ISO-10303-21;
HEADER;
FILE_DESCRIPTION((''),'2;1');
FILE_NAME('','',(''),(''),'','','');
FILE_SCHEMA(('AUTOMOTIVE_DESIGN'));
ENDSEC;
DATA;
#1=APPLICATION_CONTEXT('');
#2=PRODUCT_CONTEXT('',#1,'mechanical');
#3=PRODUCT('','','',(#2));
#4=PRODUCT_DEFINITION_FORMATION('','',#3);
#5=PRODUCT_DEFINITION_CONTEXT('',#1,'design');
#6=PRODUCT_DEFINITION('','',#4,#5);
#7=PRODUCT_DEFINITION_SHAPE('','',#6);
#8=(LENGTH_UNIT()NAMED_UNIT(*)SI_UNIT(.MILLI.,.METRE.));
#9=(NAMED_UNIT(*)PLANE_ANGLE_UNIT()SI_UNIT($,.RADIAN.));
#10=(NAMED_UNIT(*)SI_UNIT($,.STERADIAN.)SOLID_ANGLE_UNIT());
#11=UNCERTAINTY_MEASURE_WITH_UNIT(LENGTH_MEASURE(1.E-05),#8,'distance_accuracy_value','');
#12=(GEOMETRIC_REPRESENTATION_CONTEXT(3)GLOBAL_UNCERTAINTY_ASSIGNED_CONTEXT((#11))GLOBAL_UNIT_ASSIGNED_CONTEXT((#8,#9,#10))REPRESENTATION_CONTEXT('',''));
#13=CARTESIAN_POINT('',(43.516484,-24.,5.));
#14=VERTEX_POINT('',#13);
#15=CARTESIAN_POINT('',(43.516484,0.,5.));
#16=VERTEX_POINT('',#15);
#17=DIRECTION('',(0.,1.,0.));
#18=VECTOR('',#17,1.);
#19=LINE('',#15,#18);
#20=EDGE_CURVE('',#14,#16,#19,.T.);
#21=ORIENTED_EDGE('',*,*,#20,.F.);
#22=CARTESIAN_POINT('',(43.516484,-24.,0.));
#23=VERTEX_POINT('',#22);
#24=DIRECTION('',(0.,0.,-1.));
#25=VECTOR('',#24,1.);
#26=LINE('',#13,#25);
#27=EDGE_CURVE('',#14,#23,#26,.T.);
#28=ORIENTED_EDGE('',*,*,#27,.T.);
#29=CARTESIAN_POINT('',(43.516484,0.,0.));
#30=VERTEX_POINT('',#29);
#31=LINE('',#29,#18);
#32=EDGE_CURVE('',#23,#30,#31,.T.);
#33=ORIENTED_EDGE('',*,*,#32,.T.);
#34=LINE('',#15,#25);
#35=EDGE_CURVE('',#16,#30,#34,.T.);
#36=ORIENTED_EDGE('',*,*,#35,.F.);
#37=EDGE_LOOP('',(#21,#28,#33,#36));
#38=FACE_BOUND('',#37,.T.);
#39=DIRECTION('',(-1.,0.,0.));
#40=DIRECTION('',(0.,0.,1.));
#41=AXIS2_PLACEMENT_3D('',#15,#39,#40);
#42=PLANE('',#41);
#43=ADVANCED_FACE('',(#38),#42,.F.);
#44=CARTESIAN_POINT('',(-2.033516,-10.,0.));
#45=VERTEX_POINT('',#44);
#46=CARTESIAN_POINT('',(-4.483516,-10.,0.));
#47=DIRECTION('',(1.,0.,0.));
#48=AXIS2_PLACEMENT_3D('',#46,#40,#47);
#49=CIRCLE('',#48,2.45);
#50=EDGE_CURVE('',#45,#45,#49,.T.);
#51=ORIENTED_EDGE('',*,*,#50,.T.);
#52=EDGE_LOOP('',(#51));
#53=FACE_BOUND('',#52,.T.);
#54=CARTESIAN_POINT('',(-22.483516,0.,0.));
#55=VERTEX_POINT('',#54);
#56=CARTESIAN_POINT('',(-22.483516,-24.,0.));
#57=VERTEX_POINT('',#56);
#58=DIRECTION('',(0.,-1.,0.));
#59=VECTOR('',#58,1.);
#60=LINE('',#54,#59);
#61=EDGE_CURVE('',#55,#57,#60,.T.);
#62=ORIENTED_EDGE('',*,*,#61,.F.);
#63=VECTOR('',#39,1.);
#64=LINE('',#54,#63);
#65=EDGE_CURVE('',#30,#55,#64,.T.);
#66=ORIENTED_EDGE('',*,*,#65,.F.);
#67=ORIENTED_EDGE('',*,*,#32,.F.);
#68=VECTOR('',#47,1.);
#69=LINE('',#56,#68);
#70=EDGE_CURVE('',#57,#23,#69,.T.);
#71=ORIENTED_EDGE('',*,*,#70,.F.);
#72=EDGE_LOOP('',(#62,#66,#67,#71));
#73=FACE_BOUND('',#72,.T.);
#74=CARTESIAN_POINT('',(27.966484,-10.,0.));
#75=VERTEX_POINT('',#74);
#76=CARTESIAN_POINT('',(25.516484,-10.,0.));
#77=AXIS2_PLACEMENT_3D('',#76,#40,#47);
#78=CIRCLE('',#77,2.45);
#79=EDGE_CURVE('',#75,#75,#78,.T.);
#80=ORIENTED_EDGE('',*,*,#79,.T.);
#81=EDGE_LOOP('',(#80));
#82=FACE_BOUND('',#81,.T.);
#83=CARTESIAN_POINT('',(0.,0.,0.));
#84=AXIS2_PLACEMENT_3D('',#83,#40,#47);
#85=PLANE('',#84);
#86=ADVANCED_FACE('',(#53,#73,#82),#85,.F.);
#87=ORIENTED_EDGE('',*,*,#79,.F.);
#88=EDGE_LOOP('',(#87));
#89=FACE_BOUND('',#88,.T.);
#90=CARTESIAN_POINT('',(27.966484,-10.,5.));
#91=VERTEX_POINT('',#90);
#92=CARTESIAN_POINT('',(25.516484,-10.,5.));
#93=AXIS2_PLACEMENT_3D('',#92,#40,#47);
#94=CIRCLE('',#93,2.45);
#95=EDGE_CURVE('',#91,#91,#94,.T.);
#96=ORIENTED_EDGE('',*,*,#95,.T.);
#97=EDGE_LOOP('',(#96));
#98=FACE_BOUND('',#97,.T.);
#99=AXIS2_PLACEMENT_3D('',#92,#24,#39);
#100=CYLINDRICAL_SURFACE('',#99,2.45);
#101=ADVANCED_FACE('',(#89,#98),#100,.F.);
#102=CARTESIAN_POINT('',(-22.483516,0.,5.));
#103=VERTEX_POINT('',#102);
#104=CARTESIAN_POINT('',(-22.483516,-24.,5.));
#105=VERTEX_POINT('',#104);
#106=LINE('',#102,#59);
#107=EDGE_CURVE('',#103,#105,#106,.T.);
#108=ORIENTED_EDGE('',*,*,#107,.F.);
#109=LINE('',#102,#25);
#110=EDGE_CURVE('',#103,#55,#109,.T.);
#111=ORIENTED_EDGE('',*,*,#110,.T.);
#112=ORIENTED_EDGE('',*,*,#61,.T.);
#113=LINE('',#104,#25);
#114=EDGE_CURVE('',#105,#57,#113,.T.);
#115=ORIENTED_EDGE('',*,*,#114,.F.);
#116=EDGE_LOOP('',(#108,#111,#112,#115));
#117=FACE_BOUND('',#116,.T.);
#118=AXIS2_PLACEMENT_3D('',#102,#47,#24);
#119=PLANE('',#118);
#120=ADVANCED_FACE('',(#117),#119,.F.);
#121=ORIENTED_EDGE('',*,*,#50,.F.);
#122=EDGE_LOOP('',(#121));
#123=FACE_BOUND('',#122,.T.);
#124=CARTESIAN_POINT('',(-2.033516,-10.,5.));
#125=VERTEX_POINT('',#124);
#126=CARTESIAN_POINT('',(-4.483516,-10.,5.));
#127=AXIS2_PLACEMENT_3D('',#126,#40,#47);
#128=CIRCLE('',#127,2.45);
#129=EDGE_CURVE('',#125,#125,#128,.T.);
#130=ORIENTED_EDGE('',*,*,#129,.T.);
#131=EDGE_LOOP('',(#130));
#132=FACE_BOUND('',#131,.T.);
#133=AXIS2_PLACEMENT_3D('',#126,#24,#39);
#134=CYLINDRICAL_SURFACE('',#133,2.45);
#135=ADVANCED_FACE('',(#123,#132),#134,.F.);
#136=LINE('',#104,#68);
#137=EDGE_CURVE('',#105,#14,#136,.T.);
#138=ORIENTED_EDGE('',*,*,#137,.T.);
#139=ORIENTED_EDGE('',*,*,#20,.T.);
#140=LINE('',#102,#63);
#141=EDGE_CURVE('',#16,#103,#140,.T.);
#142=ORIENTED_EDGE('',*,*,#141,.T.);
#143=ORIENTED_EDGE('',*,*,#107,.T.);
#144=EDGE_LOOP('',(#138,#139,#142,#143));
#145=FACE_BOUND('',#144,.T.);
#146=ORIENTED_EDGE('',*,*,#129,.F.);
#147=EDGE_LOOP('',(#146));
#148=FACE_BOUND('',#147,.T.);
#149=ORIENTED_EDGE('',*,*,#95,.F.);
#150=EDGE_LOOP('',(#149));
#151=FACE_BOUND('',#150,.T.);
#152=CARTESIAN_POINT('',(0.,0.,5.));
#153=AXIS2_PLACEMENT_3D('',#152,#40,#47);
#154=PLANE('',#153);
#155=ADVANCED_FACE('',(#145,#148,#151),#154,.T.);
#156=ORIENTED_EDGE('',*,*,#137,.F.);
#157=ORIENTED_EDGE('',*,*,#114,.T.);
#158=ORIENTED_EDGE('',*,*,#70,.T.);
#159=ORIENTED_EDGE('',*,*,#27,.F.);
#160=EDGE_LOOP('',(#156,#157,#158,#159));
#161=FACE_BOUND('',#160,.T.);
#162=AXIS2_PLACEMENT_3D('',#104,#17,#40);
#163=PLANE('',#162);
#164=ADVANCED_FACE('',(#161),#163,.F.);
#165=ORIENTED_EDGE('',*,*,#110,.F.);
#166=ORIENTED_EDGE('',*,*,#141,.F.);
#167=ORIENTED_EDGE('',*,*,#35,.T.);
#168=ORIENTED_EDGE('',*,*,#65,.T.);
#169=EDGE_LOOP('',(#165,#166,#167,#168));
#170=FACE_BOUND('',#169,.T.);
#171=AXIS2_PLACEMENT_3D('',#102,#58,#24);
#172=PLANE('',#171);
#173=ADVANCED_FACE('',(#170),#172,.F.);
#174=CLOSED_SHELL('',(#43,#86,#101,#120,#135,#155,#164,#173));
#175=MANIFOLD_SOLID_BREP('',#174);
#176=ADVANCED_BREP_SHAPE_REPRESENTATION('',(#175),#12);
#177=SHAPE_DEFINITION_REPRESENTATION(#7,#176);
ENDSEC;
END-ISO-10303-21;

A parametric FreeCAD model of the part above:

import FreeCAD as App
import Part
import Sketcher

V = App.Vector


def add_polygon(sketch, points):
    """Adds a closed chain of lines whose ends are joined by coincident constraints."""
    first, n = sketch.GeometryCount, len(points)
    for a, b in zip(points, points[1:] + points[:1]):
        sketch.addGeometry(Part.LineSegment(App.Vector(*a, 0), App.Vector(*b, 0)), False)
    for i in range(n):
        sketch.addConstraint(Sketcher.Constraint("Coincident", first + i, 2, first + (i + 1) % n, 1))

doc = App.newDocument("Part")
body = doc.addObject("PartDesign::Body", "Body")

sketch1 = body.newObject("Sketcher::SketchObject", "Sketch")
sketch1.AttachmentSupport = (doc.getObject("XY_Plane"), [""])
sketch1.MapMode = "FlatFace"
add_polygon(sketch1, [(-22.5, 0), (-22.5, -24), (43.5, -24), (43.5, 0)])
sketch1.addGeometry(Part.Circle(V(-4.5, -10, 0), V(0, 0, 1), 2.5), False)
sketch1.addGeometry(Part.Circle(V(25.5, -10, 0), V(0, 0, 1), 2.5), False)
sketch1.addConstraint([
    Sketcher.Constraint("Vertical", 0),
    Sketcher.Constraint("Horizontal", 1),
    Sketcher.Constraint("Vertical", 2),
    Sketcher.Constraint("Horizontal", 3),
    Sketcher.Constraint("Equal", 4, 5),
    Sketcher.Constraint("PointOnObject", 2, 2, -1),
    Sketcher.Constraint("Horizontal", 4, 3, 5, 3),
    Sketcher.Constraint("Diameter", 4, 4.9),
    Sketcher.Constraint("DistanceX", 1, 1, 1, 2, 66.0),
    Sketcher.Constraint("DistanceY", 0, 2, 0, 1, 24.0),
    Sketcher.Constraint("DistanceY", 4, 3, -1, 1, 10.0),
    Sketcher.Constraint("DistanceX", 4, 3, 5, 3, 30.0),
    Sketcher.Constraint("DistanceX", 0, 2, 4, 3, 18.0),
    Sketcher.Constraint("DistanceX", 4, 3, -1, 1, 4.483516),
])
pad1 = body.newObject("PartDesign::Pad", "Pad")
pad1.Profile = sketch1
pad1.Length = 5

doc.recompute()
